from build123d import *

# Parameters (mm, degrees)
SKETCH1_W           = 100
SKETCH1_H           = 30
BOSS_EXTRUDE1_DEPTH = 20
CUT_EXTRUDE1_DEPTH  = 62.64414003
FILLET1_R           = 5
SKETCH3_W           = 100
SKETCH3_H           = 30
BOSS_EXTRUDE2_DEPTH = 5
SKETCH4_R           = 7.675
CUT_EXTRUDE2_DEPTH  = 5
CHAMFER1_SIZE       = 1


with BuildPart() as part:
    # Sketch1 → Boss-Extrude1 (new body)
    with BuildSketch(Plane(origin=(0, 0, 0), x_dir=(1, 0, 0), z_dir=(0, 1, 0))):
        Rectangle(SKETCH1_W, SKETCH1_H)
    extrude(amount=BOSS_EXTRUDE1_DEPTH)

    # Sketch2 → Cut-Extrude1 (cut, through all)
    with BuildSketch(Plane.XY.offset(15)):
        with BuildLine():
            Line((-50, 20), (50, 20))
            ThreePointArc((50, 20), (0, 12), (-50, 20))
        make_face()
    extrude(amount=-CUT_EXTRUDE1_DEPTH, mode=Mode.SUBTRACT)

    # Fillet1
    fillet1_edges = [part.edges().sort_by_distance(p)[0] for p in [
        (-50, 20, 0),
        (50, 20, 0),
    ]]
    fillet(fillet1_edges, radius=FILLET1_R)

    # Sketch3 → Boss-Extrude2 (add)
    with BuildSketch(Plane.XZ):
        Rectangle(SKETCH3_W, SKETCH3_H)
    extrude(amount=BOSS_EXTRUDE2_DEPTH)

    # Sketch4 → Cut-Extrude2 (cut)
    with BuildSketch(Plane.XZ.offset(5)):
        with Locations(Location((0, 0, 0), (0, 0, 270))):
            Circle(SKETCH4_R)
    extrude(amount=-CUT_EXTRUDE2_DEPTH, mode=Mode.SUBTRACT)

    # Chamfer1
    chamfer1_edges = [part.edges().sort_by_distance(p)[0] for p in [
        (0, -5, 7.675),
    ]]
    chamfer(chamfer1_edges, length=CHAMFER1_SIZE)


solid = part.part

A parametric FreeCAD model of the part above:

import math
import FreeCAD as App
import Part
import Sketcher

V = App.Vector
Q = App.Units.Quantity


def edges_at(feature, points):
    """Names of the edges that pass closest to the given points."""
    edges = feature.Shape.Edges
    near = lambda p: min(range(len(edges)), key=lambda i: edges[i].distToShape(Part.Vertex(*p))[0])
    return sorted({f"Edge{near(p) + 1}" for p in points})


def add_polygon(sketch, points):
    """Adds a closed chain of lines whose ends are joined by coincident constraints."""
    first, n = sketch.GeometryCount, len(points)
    for a, b in zip(points, points[1:] + points[:1]):
        sketch.addGeometry(Part.LineSegment(App.Vector(*a, 0), App.Vector(*b, 0)), False)
    for i in range(n):
        sketch.addConstraint(Sketcher.Constraint("Coincident", first + i, 2, first + (i + 1) % n, 1))

doc = App.newDocument("Part")
params = doc.addObject("Spreadsheet::Sheet", "Params")
for row, (alias, value) in enumerate([
    ("sketch1_width", "100 mm"),
    ("sketch1_height", "30 mm"),
    ("pad1_length", "20 mm"),
    ("sketch2_width", "100 mm"),
    ("sketch2_radius", "160.25 mm"),
    ("fillet_radius", "5 mm"),
    ("sketch3_width", "100 mm"),
    ("sketch3_height", "30 mm"),
    ("pad2_length", "5 mm"),
    ("sketch4_diameter", "15.35 mm"),
    ("pocket2_length", "5 mm"),
    ("chamfer_size", "1 mm"),
], start=1):
    params.set(f"A{row}", alias)
    params.set(f"B{row}", "=" + value)
    params.setAlias(f"B{row}", alias)

body = doc.addObject("PartDesign::Body", "Body")

sketch1 = body.newObject("Sketcher::SketchObject", "Sketch")
sketch1.AttachmentSupport = (doc.getObject("XZ_Plane"), [""])
sketch1.MapMode = "FlatFace"
add_polygon(sketch1, [(-50, -15), (-50, 15), (50, 15), (50, -15)])
sketch1.addConstraint([
    Sketcher.Constraint("Vertical", 0),
    Sketcher.Constraint("Horizontal", 1),
    Sketcher.Constraint("Vertical", 2),
    Sketcher.Constraint("Horizontal", 3),
    Sketcher.Constraint("Symmetric", 0, 2, 2, 2, -1, 1),
    Sketcher.Constraint("DistanceX", 1, 1, 1, 2, Q("100 mm")),
    Sketcher.Constraint("DistanceY", 0, 1, 0, 2, Q("30 mm")),
])
sketch1.setExpression("Constraints[9]", "Params.sketch1_width")
sketch1.setExpression("Constraints[10]", "Params.sketch1_height")
pad1 = body.newObject("PartDesign::Pad", "Pad")
pad1.Profile = sketch1
pad1.setExpression("Length", "Params.pad1_length")
pad1.Reversed = True

sketch2 = body.newObject("Sketcher::SketchObject", "Sketch001")
sketch2.AttachmentSupport = (doc.getObject("XY_Plane"), [""])
sketch2.MapMode = "FlatFace"
sketch2.AttachmentOffset = App.Placement(V(0, 0, 15), App.Rotation())
sketch2.addGeometry([
    Part.LineSegment(V(50, 20, 0), V(-50, 20, 0)),
    Part.ArcOfCircle(Part.Circle(V(0, 172.25, 0), V(0, 0, 1), 160.25), math.radians(-108.180554), math.radians(-71.819446)),
], False)
sketch2.addConstraint([
    Sketcher.Constraint("Coincident", 0, 1, 1, 2),
    Sketcher.Constraint("Coincident", 1, 1, 0, 2),
    Sketcher.Constraint("Horizontal", 0),
    Sketcher.Constraint("PointOnObject", 1, 3, -2),
    Sketcher.Constraint("DistanceX", 0, 2, 0, 1, Q("100 mm")),
    Sketcher.Constraint("Radius", 1, Q("160.25 mm")),
    Sketcher.Constraint("DistanceY", -1, 1, 0, 1, Q("20 mm")),
])
sketch2.setExpression("Constraints[4]", "Params.sketch2_width")
sketch2.setExpression("Constraints[5]", "Params.sketch2_radius")
pocket1 = body.newObject("PartDesign::Pocket", "Pocket")
pocket1.Profile = sketch2
pocket1.Type = "ThroughAll"
doc.recompute()

fillet = body.newObject("PartDesign::Fillet", "Fillet")
fillet.Base = (pocket1, edges_at(pocket1, [(-50, 20, 0), (50, 20, 0)]))
fillet.setExpression("Radius", "Params.fillet_radius")

sketch3 = body.newObject("Sketcher::SketchObject", "Sketch002")
sketch3.AttachmentSupport = (doc.getObject("XZ_Plane"), [""])
sketch3.MapMode = "FlatFace"
add_polygon(sketch3, [(-50, 15), (-50, -15), (50, -15), (50, 15)])
sketch3.addConstraint([
    Sketcher.Constraint("Vertical", 0),
    Sketcher.Constraint("Horizontal", 1),
    Sketcher.Constraint("Vertical", 2),
    Sketcher.Constraint("Horizontal", 3),
    Sketcher.Constraint("Symmetric", 0, 2, 2, 2, -1, 1),
    Sketcher.Constraint("DistanceX", 1, 1, 1, 2, Q("100 mm")),
    Sketcher.Constraint("DistanceY", 0, 2, 0, 1, Q("30 mm")),
])
sketch3.setExpression("Constraints[9]", "Params.sketch3_width")
sketch3.setExpression("Constraints[10]", "Params.sketch3_height")
pad2 = body.newObject("PartDesign::Pad", "Pad001")
pad2.Profile = sketch3
pad2.setExpression("Length", "Params.pad2_length")

sketch4 = body.newObject("Sketcher::SketchObject", "Sketch003")
sketch4.AttachmentSupport = (doc.getObject("XZ_Plane"), [""])
sketch4.MapMode = "FlatFace"
sketch4.AttachmentOffset = App.Placement(V(0, 0, 5), App.Rotation())
sketch4.addGeometry(Part.Circle(V(0, 0, 0), V(0, 0, 1), 7.675), False)
sketch4.addConstraint([
    Sketcher.Constraint("Coincident", 0, 3, -1, 1),
    Sketcher.Constraint("Diameter", 0, Q("15.35 mm")),
])
sketch4.setExpression("Constraints[1]", "Params.sketch4_diameter")
pocket2 = body.newObject("PartDesign::Pocket", "Pocket001")
pocket2.Profile = sketch4
pocket2.setExpression("Length", "Params.pocket2_length")
doc.recompute()

chamfer = body.newObject("PartDesign::Chamfer", "Chamfer")
chamfer.Base = (pocket2, edges_at(pocket2, [(0, -5, 7.675)]))
chamfer.setExpression("Size", "Params.chamfer_size")

doc.recompute()
